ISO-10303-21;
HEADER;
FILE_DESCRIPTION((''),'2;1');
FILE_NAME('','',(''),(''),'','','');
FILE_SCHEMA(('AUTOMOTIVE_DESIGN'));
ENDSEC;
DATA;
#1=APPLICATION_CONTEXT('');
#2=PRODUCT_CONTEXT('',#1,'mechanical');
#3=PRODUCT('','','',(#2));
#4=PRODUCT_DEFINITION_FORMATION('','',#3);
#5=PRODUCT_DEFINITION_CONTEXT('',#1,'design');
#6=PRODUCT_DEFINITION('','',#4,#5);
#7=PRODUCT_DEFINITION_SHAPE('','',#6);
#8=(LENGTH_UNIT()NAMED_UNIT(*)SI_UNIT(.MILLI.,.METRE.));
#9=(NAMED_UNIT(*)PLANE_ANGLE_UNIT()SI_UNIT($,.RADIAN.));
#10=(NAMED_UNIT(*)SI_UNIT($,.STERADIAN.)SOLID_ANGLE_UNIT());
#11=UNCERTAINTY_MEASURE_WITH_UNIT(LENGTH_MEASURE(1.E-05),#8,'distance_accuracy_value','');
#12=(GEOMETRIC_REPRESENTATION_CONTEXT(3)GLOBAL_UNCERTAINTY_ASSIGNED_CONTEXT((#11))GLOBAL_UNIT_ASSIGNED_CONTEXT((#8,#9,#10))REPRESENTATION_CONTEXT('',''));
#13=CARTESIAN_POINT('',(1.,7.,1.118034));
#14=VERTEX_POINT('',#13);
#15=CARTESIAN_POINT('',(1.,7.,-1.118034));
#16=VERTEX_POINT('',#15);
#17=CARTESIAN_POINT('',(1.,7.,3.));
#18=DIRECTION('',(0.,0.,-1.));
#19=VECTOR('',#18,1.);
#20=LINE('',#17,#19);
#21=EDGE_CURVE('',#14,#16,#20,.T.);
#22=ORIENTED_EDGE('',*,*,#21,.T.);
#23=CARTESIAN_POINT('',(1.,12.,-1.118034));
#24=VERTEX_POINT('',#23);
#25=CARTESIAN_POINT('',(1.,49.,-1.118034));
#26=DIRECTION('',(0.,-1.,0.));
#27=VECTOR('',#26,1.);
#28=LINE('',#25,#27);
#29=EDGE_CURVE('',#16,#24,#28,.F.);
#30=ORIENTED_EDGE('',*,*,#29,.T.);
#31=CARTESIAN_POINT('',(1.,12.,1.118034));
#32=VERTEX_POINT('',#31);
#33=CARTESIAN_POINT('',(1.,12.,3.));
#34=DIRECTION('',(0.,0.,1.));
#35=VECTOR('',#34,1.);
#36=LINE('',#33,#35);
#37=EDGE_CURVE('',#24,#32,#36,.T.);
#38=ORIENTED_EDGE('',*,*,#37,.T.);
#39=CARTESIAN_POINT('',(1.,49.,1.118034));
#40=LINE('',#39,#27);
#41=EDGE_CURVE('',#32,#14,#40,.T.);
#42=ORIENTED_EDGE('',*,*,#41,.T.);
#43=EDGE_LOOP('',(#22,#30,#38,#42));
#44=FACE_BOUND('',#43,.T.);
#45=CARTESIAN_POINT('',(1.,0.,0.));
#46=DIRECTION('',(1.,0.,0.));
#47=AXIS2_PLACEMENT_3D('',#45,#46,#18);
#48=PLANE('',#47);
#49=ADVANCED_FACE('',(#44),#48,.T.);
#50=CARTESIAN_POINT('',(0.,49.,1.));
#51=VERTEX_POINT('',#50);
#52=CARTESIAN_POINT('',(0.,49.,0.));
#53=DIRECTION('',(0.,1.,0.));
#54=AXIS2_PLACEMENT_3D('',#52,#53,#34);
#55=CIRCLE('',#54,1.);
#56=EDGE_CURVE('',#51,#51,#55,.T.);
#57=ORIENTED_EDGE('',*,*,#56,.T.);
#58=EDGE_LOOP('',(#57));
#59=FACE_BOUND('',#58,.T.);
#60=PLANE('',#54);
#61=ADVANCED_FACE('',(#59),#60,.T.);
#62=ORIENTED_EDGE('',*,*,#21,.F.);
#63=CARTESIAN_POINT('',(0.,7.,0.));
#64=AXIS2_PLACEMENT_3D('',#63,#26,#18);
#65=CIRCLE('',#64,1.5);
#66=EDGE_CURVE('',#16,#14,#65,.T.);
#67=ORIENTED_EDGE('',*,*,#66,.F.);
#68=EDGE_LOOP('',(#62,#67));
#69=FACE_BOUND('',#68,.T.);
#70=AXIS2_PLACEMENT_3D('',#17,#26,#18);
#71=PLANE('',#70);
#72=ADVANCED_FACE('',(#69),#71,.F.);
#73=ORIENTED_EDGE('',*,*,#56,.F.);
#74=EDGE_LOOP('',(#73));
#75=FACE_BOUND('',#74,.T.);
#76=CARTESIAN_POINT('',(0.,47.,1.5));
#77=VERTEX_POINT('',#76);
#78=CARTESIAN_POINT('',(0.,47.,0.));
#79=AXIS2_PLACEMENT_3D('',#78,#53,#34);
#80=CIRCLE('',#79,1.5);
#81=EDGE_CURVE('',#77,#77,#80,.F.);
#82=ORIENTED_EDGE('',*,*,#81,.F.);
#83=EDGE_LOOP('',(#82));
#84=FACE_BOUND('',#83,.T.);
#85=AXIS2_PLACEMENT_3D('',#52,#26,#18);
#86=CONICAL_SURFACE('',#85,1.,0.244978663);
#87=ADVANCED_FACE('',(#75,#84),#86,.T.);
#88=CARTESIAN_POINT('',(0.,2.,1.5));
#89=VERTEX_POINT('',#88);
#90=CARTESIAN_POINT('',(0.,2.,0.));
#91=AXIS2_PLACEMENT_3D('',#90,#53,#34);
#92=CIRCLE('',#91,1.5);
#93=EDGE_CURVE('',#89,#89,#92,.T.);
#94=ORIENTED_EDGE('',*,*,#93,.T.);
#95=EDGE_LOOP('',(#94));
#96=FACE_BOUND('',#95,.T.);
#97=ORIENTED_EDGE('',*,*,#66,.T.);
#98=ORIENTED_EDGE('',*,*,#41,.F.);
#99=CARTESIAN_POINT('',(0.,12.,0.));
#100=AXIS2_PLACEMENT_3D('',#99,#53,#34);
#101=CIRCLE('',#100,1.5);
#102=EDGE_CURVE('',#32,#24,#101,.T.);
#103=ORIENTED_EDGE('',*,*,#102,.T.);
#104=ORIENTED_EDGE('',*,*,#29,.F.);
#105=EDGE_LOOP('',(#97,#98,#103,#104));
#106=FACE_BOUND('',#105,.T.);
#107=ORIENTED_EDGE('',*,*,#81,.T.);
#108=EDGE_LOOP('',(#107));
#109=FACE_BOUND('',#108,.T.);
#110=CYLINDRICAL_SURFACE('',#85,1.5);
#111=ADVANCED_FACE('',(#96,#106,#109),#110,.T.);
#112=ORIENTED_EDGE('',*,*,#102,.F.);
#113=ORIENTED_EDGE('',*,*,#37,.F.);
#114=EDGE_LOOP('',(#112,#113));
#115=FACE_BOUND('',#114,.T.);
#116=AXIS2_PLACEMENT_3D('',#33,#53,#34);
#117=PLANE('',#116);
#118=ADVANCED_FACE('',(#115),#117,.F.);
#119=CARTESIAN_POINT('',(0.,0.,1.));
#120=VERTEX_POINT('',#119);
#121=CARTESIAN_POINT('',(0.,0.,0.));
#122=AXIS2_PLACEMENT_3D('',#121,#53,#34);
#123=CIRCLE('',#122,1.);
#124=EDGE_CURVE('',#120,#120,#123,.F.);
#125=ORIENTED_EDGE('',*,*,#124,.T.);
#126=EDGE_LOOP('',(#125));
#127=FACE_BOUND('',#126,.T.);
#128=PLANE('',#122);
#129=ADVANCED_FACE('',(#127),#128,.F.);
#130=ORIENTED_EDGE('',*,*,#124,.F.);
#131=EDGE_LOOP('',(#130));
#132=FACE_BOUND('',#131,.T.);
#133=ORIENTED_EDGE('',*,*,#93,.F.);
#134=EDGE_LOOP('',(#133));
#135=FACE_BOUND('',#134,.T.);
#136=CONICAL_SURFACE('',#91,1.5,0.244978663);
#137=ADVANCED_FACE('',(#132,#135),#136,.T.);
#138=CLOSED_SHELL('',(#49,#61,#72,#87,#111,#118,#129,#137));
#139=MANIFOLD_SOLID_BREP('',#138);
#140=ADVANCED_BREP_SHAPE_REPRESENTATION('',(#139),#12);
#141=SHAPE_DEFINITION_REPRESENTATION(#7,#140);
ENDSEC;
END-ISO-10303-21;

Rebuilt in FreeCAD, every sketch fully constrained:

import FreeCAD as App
import Part
import Sketcher

V = App.Vector


def edges_at(feature, points):
    """Names of the edges that pass closest to the given points."""
    edges = feature.Shape.Edges
    near = lambda p: min(range(len(edges)), key=lambda i: edges[i].distToShape(Part.Vertex(*p))[0])
    return sorted({f"Edge{near(p) + 1}" for p in points})


def add_polygon(sketch, points):
    """Adds a closed chain of lines whose ends are joined by coincident constraints."""
    first, n = sketch.GeometryCount, len(points)
    for a, b in zip(points, points[1:] + points[:1]):
        sketch.addGeometry(Part.LineSegment(App.Vector(*a, 0), App.Vector(*b, 0)), False)
    for i in range(n):
        sketch.addConstraint(Sketcher.Constraint("Coincident", first + i, 2, first + (i + 1) % n, 1))

doc = App.newDocument("Part")
params = doc.addObject("Spreadsheet::Sheet", "Params")
for row, (alias, value) in enumerate([
    ("sketch1_diameter", "3 mm"),
    ("pad1_length", "49 mm"),
    ("chamfer_size", "0.5 mm"),
    ("chamfer_size2", "2 mm"),
    ("chamfer2_size", "2 mm"),
    ("chamfer2_size2", "0.5 mm"),
    ("sketch2_width", "5 mm"),
    ("sketch2_height", "6 mm"),
    ("pocket1_length", "0.5 mm"),
], start=1):
    params.set(f"A{row}", alias)
    params.set(f"B{row}", "=" + value)
    params.setAlias(f"B{row}", alias)

body = doc.addObject("PartDesign::Body", "Body")

# Sketch on XZ plane
sketch1 = body.newObject("Sketcher::SketchObject", "Sketch")
sketch1.AttachmentSupport = (doc.getObject("XZ_Plane"), [""])
sketch1.MapMode = "FlatFace"
sketch1.addGeometry(Part.Circle(V(0, 0, 0), V(0, 0, 1), 1.5), False)
sketch1.addConstraint(Sketcher.Constraint("Coincident", 0, 3, -1, 1))
sketch1.addConstraint(Sketcher.Constraint("Diameter", 0, 3.0))
sketch1.setExpression("Constraints[1]", "Params.sketch1_diameter")
pad1 = body.newObject("PartDesign::Pad", "Pad")
pad1.Profile = sketch1
pad1.setExpression("Length", "Params.pad1_length")
pad1.Reversed = True
doc.recompute()

chamfer = body.newObject("PartDesign::Chamfer", "Chamfer")
chamfer.Base = (pad1, edges_at(pad1, [(-1.5, 0, 0)]))
chamfer.ChamferType = "Two distances"
chamfer.setExpression("Size", "Params.chamfer_size")
chamfer.setExpression("Size2", "Params.chamfer_size2")
chamfer.FlipDirection = True
doc.recompute()

chamfer2 = body.newObject("PartDesign::Chamfer", "Chamfer001")
chamfer2.Base = (chamfer, edges_at(chamfer, [(-1.5, 49, 0)]))
chamfer2.ChamferType = "Two distances"
chamfer2.setExpression("Size", "Params.chamfer2_size")
chamfer2.setExpression("Size2", "Params.chamfer2_size2")

# Sketch on YZ plane
sketch2 = body.newObject("Sketcher::SketchObject", "Sketch001")
sketch2.AttachmentSupport = (doc.getObject("YZ_Plane"), [""])
sketch2.MapMode = "FlatFace"
sketch2.AttachmentOffset = App.Placement(V(0, 0, 1.5), App.Rotation())
add_polygon(sketch2, [(12, 3), (7, 3), (7, -3), (12, -3)])  # lines 0-3
sketch2.addConstraint(Sketcher.Constraint("Horizontal", 0))
sketch2.addConstraint(Sketcher.Constraint("Vertical", 1))
sketch2.addConstraint(Sketcher.Constraint("Horizontal", 2))
sketch2.addConstraint(Sketcher.Constraint("Vertical", 3))
sketch2.addConstraint(Sketcher.Constraint("DistanceX", 0, 2, 0, 1, 5.0))
sketch2.addConstraint(Sketcher.Constraint("DistanceY", 1, 2, 1, 1, 6.0))
sketch2.addConstraint(Sketcher.Constraint("DistanceX", -1, 1, 0, 2, 7.0))
sketch2.addConstraint(Sketcher.Constraint("DistanceY", -1, 1, 0, 2, 3.0))
sketch2.setExpression("Constraints[8]", "Params.sketch2_width")
sketch2.setExpression("Constraints[9]", "Params.sketch2_height")
pocket1 = body.newObject("PartDesign::Pocket", "Pocket")
pocket1.Profile = sketch2
pocket1.setExpression("Length", "Params.pocket1_length")

doc.recompute()
